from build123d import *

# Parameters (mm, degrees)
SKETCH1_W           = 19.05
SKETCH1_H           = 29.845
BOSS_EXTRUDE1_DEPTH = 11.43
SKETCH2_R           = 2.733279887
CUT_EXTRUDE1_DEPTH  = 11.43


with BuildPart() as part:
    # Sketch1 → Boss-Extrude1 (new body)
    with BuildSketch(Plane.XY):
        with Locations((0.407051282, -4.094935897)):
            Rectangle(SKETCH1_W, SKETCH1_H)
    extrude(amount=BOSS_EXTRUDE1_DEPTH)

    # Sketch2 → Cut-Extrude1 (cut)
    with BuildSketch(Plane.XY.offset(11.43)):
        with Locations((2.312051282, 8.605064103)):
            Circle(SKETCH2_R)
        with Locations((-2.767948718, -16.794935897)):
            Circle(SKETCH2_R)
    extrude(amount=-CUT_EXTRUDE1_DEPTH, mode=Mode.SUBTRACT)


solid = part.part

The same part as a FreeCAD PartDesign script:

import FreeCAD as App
import Part
import Sketcher

V = App.Vector
Q = App.Units.Quantity

doc = App.newDocument("Part")
body = doc.addObject("PartDesign::Body", "Body")

# Sketch on XY plane
sketch1 = body.newObject("Sketcher::SketchObject", "Sketch")
sketch1.AttachmentSupport = (doc.getObject("XY_Plane"), [""])
sketch1.MapMode = "FlatFace"
sketch1.addGeometry(Part.LineSegment(V(-9, 11, 0), V(-9, -19, 0)), False)
sketch1.addGeometry(Part.LineSegment(V(-9, -19, 0), V(10, -19, 0)), False)
sketch1.addGeometry(Part.LineSegment(V(10, -19, 0), V(10, 11, 0)), False)
sketch1.addGeometry(Part.LineSegment(V(10, 11, 0), V(-9, 11, 0)), False)
sketch1.addConstraint(Sketcher.Constraint("Coincident", 0, 2, 1, 1))
sketch1.addConstraint(Sketcher.Constraint("Coincident", 1, 2, 2, 1))
sketch1.addConstraint(Sketcher.Constraint("Coincident", 2, 2, 3, 1))
sketch1.addConstraint(Sketcher.Constraint("Coincident", 3, 2, 0, 1))
sketch1.addConstraint(Sketcher.Constraint("Vertical", 0))
sketch1.addConstraint(Sketcher.Constraint("Horizontal", 1))
sketch1.addConstraint(Sketcher.Constraint("Vertical", 2))
sketch1.addConstraint(Sketcher.Constraint("Horizontal", 3))
sketch1.addConstraint(Sketcher.Constraint("DistanceX", 1, 1, 1, 2, Q("0.75 in")))
sketch1.addConstraint(Sketcher.Constraint("DistanceY", 0, 2, 0, 1, Q("1.175 in")))
sketch1.addConstraint(Sketcher.Constraint("DistanceX", 0, 2, -1, 1, 9.117949))
sketch1.addConstraint(Sketcher.Constraint("DistanceY", 0, 2, -1, 1, 19.017436))
pad1 = body.newObject("PartDesign::Pad", "Pad")
pad1.Profile = sketch1
pad1.Length = Q("0.45 in")

# Sketch on XY plane
sketch2 = body.newObject("Sketcher::SketchObject", "Sketch001")
sketch2.AttachmentSupport = (doc.getObject("XY_Plane"), [""])
sketch2.MapMode = "FlatFace"
sketch2.AttachmentOffset = App.Placement(V(0, 0, 0.45 * 25.4), App.Rotation())
sketch2.addGeometry(Part.Circle(V(2.3, 8.6, 0), V(0, 0, 1), 2.7), False)
sketch2.addGeometry(Part.Circle(V(-2.8, -16.8, 0), V(0, 0, 1), 2.7), False)
sketch2.addConstraint(Sketcher.Constraint("Equal", 0, 1))
sketch2.addConstraint(Sketcher.Constraint("DistanceY", 1, 3, 0, 3, Q("1 in")))
sketch2.addConstraint(Sketcher.Constraint("DistanceX", 1, 3, 0, 3, Q("0.2 in")))
sketch2.addConstraint(Sketcher.Constraint("Diameter", 0, 5.46656))
sketch2.addConstraint(Sketcher.Constraint("DistanceX", -1, 1, 0, 3, 2.312051))
sketch2.addConstraint(Sketcher.Constraint("DistanceY", -1, 1, 0, 3, 8.605064))
pocket1 = body.newObject("PartDesign::Pocket", "Pocket")
pocket1.Profile = sketch2
pocket1.Length = Q("0.45 in")

doc.recompute()
